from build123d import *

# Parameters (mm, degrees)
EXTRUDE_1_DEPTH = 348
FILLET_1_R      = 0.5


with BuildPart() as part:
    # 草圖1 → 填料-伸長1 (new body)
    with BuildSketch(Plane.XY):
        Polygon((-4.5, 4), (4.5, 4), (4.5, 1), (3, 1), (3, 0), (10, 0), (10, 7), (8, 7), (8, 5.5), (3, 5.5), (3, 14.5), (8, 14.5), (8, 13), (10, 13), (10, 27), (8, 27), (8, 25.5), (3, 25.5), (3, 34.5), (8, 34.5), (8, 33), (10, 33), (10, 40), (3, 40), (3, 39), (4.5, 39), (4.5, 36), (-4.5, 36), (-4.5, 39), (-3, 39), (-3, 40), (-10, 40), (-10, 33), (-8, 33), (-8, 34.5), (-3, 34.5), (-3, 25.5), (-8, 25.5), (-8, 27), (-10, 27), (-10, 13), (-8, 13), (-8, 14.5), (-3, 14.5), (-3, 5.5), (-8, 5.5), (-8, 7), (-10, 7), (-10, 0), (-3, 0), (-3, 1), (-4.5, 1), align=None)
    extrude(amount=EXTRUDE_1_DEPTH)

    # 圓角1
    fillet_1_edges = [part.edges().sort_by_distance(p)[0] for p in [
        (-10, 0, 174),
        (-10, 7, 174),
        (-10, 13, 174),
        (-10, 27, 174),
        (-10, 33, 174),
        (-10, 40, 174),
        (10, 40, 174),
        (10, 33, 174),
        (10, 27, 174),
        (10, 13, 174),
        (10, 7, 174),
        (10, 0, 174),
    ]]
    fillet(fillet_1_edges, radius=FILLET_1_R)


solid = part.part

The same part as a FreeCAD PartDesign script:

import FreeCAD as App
import Part
import Sketcher
from FreeCAD import Vector
Q = App.Units.Quantity


def edges_at(feature, points):
    """Names of the edges that pass closest to the given points."""
    edges = feature.Shape.Edges
    near = lambda p: min(range(len(edges)), key=lambda i: edges[i].distToShape(Part.Vertex(*p))[0])
    return sorted({f"Edge{near(p) + 1}" for p in points})

doc = App.newDocument("Part")
body = doc.addObject("PartDesign::Body", "Body")

# Sketch on XY plane
sketch1 = doc.addObject("Sketcher::SketchObject", "Sketch")
body.addObject(sketch1)
sketch1.AttachmentSupport = (doc.XY_Plane, [""])
sketch1.MapMode = "FlatFace"
sketch1.addGeometry([
    Part.LineSegment(Vector(-4.5, 4, 0), Vector(4.5, 4, 0)),  # 0
    Part.LineSegment(Vector(4.5, 4, 0), Vector(4.5, 1, 0)),  # 1
    Part.LineSegment(Vector(4.5, 1, 0), Vector(3, 1, 0)),  # 2
    Part.LineSegment(Vector(3, 1, 0), Vector(3, 0, 0)),  # 3
    Part.LineSegment(Vector(3, 0, 0), Vector(10, 0, 0)),  # 4
    Part.LineSegment(Vector(10, 0, 0), Vector(10, 7, 0)),  # 5
    Part.LineSegment(Vector(10, 7, 0), Vector(8, 7, 0)),  # 6
    Part.LineSegment(Vector(8, 7, 0), Vector(8, 5.5, 0)),  # 7
    Part.LineSegment(Vector(8, 5.5, 0), Vector(3, 5.5, 0)),  # 8
    Part.LineSegment(Vector(3, 5.5, 0), Vector(3, 14.5, 0)),  # 9
    Part.LineSegment(Vector(3, 14.5, 0), Vector(8, 14.5, 0)),  # 10
    Part.LineSegment(Vector(8, 14.5, 0), Vector(8, 13, 0)),  # 11
    Part.LineSegment(Vector(8, 13, 0), Vector(10, 13, 0)),  # 12
    Part.LineSegment(Vector(10, 13, 0), Vector(10, 27, 0)),  # 13
    Part.LineSegment(Vector(10, 27, 0), Vector(8, 27, 0)),  # 14
    Part.LineSegment(Vector(8, 27, 0), Vector(8, 25.5, 0)),  # 15
    Part.LineSegment(Vector(8, 25.5, 0), Vector(3, 25.5, 0)),  # 16
    Part.LineSegment(Vector(3, 25.5, 0), Vector(3, 34.5, 0)),  # 17
    Part.LineSegment(Vector(3, 34.5, 0), Vector(8, 34.5, 0)),  # 18
    Part.LineSegment(Vector(8, 34.5, 0), Vector(8, 33, 0)),  # 19
    Part.LineSegment(Vector(8, 33, 0), Vector(10, 33, 0)),  # 20
    Part.LineSegment(Vector(10, 33, 0), Vector(10, 40, 0)),  # 21
    Part.LineSegment(Vector(10, 40, 0), Vector(3, 40, 0)),  # 22
    Part.LineSegment(Vector(3, 40, 0), Vector(3, 39, 0)),  # 23
    Part.LineSegment(Vector(3, 39, 0), Vector(4.5, 39, 0)),  # 24
    Part.LineSegment(Vector(4.5, 39, 0), Vector(4.5, 36, 0)),  # 25
    Part.LineSegment(Vector(4.5, 36, 0), Vector(-4.5, 36, 0)),  # 26
    Part.LineSegment(Vector(-4.5, 36, 0), Vector(-4.5, 39, 0)),  # 27
    Part.LineSegment(Vector(-4.5, 39, 0), Vector(-3, 39, 0)),  # 28
    Part.LineSegment(Vector(-3, 39, 0), Vector(-3, 40, 0)),  # 29
    Part.LineSegment(Vector(-3, 40, 0), Vector(-10, 40, 0)),  # 30
    Part.LineSegment(Vector(-10, 40, 0), Vector(-10, 33, 0)),  # 31
    Part.LineSegment(Vector(-10, 33, 0), Vector(-8, 33, 0)),  # 32
    Part.LineSegment(Vector(-8, 33, 0), Vector(-8, 34.5, 0)),  # 33
    Part.LineSegment(Vector(-8, 34.5, 0), Vector(-3, 34.5, 0)),  # 34
    Part.LineSegment(Vector(-3, 34.5, 0), Vector(-3, 25.5, 0)),  # 35
    Part.LineSegment(Vector(-3, 25.5, 0), Vector(-8, 25.5, 0)),  # 36
    Part.LineSegment(Vector(-8, 25.5, 0), Vector(-8, 27, 0)),  # 37
    Part.LineSegment(Vector(-8, 27, 0), Vector(-10, 27, 0)),  # 38
    Part.LineSegment(Vector(-10, 27, 0), Vector(-10, 13, 0)),  # 39
    Part.LineSegment(Vector(-10, 13, 0), Vector(-8, 13, 0)),  # 40
    Part.LineSegment(Vector(-8, 13, 0), Vector(-8, 14.5, 0)),  # 41
    Part.LineSegment(Vector(-8, 14.5, 0), Vector(-3, 14.5, 0)),  # 42
    Part.LineSegment(Vector(-3, 14.5, 0), Vector(-3, 5.5, 0)),  # 43
    Part.LineSegment(Vector(-3, 5.5, 0), Vector(-8, 5.5, 0)),  # 44
    Part.LineSegment(Vector(-8, 5.5, 0), Vector(-8, 7, 0)),  # 45
    Part.LineSegment(Vector(-8, 7, 0), Vector(-10, 7, 0)),  # 46
    Part.LineSegment(Vector(-10, 7, 0), Vector(-10, 0, 0)),  # 47
    Part.LineSegment(Vector(-10, 0, 0), Vector(-3, 0, 0)),  # 48
    Part.LineSegment(Vector(-3, 0, 0), Vector(-3, 1, 0)),  # 49
    Part.LineSegment(Vector(-3, 1, 0), Vector(-4.5, 1, 0)),  # 50
    Part.LineSegment(Vector(-4.5, 1, 0), Vector(-4.5, 4, 0)),  # 51
], False)
sketch1.addConstraint([
    Sketcher.Constraint("Coincident", 0, 2, 1, 1),
    Sketcher.Constraint("Coincident", 1, 2, 2, 1),
    Sketcher.Constraint("Coincident", 2, 2, 3, 1),
    Sketcher.Constraint("Coincident", 3, 2, 4, 1),
    Sketcher.Constraint("Coincident", 4, 2, 5, 1),
    Sketcher.Constraint("Coincident", 5, 2, 6, 1),
    Sketcher.Constraint("Coincident", 6, 2, 7, 1),
    Sketcher.Constraint("Coincident", 7, 2, 8, 1),
    Sketcher.Constraint("Coincident", 8, 2, 9, 1),
    Sketcher.Constraint("Coincident", 9, 2, 10, 1),
    Sketcher.Constraint("Coincident", 10, 2, 11, 1),
    Sketcher.Constraint("Coincident", 11, 2, 12, 1),
    Sketcher.Constraint("Coincident", 12, 2, 13, 1),
    Sketcher.Constraint("Coincident", 13, 2, 14, 1),
    Sketcher.Constraint("Coincident", 14, 2, 15, 1),
    Sketcher.Constraint("Coincident", 15, 2, 16, 1),
    Sketcher.Constraint("Coincident", 16, 2, 17, 1),
    Sketcher.Constraint("Coincident", 17, 2, 18, 1),
    Sketcher.Constraint("Coincident", 18, 2, 19, 1),
    Sketcher.Constraint("Coincident", 19, 2, 20, 1),
    Sketcher.Constraint("Coincident", 20, 2, 21, 1),
    Sketcher.Constraint("Coincident", 21, 2, 22, 1),
    Sketcher.Constraint("Coincident", 22, 2, 23, 1),
    Sketcher.Constraint("Coincident", 23, 2, 24, 1),
    Sketcher.Constraint("Coincident", 24, 2, 25, 1),
    Sketcher.Constraint("Coincident", 25, 2, 26, 1),
    Sketcher.Constraint("Coincident", 26, 2, 27, 1),
    Sketcher.Constraint("Coincident", 27, 2, 28, 1),
    Sketcher.Constraint("Coincident", 28, 2, 29, 1),
    Sketcher.Constraint("Coincident", 29, 2, 30, 1),
    Sketcher.Constraint("Coincident", 30, 2, 31, 1),
    Sketcher.Constraint("Coincident", 31, 2, 32, 1),
    Sketcher.Constraint("Coincident", 32, 2, 33, 1),
    Sketcher.Constraint("Coincident", 33, 2, 34, 1),
    Sketcher.Constraint("Coincident", 34, 2, 35, 1),
    Sketcher.Constraint("Coincident", 35, 2, 36, 1),
    Sketcher.Constraint("Coincident", 36, 2, 37, 1),
    Sketcher.Constraint("Coincident", 37, 2, 38, 1),
    Sketcher.Constraint("Coincident", 38, 2, 39, 1),
    Sketcher.Constraint("Coincident", 39, 2, 40, 1),
    Sketcher.Constraint("Coincident", 40, 2, 41, 1),
    Sketcher.Constraint("Coincident", 41, 2, 42, 1),
    Sketcher.Constraint("Coincident", 42, 2, 43, 1),
    Sketcher.Constraint("Coincident", 43, 2, 44, 1),
    Sketcher.Constraint("Coincident", 44, 2, 45, 1),
    Sketcher.Constraint("Coincident", 45, 2, 46, 1),
    Sketcher.Constraint("Coincident", 46, 2, 47, 1),
    Sketcher.Constraint("Coincident", 47, 2, 48, 1),
    Sketcher.Constraint("Coincident", 48, 2, 49, 1),
    Sketcher.Constraint("Coincident", 49, 2, 50, 1),
    Sketcher.Constraint("Coincident", 50, 2, 51, 1),
    Sketcher.Constraint("Coincident", 51, 2, 0, 1),
    Sketcher.Constraint("Horizontal", 0),
    Sketcher.Constraint("Vertical", 1),
    Sketcher.Constraint("Horizontal", 2),
    Sketcher.Constraint("Vertical", 3),
    Sketcher.Constraint("Horizontal", 4),
    Sketcher.Constraint("Vertical", 5),
    Sketcher.Constraint("Horizontal", 6),
    Sketcher.Constraint("Vertical", 7),
    Sketcher.Constraint("Horizontal", 8),
    Sketcher.Constraint("Vertical", 9),
    Sketcher.Constraint("Horizontal", 10),
    Sketcher.Constraint("Vertical", 11),
    Sketcher.Constraint("Horizontal", 12),
    Sketcher.Constraint("Vertical", 13),
    Sketcher.Constraint("Horizontal", 14),
    Sketcher.Constraint("Vertical", 15),
    Sketcher.Constraint("Horizontal", 16),
    Sketcher.Constraint("Vertical", 17),
    Sketcher.Constraint("Horizontal", 18),
    Sketcher.Constraint("Vertical", 19),
    Sketcher.Constraint("Horizontal", 20),
    Sketcher.Constraint("Vertical", 21),
    Sketcher.Constraint("Horizontal", 22),
    Sketcher.Constraint("Vertical", 23),
    Sketcher.Constraint("Horizontal", 24),
    Sketcher.Constraint("Vertical", 25),
    Sketcher.Constraint("Horizontal", 26),
    Sketcher.Constraint("Vertical", 27),
    Sketcher.Constraint("Horizontal", 28),
    Sketcher.Constraint("Vertical", 29),
    Sketcher.Constraint("Horizontal", 30),
    Sketcher.Constraint("Vertical", 31),
    Sketcher.Constraint("Horizontal", 32),
    Sketcher.Constraint("Vertical", 33),
    Sketcher.Constraint("Horizontal", 34),
    Sketcher.Constraint("Vertical", 35),
    Sketcher.Constraint("Horizontal", 36),
    Sketcher.Constraint("Vertical", 37),
    Sketcher.Constraint("Horizontal", 38),
    Sketcher.Constraint("Vertical", 39),
    Sketcher.Constraint("Horizontal", 40),
    Sketcher.Constraint("Vertical", 41),
    Sketcher.Constraint("Horizontal", 42),
    Sketcher.Constraint("Vertical", 43),
    Sketcher.Constraint("Horizontal", 44),
    Sketcher.Constraint("Vertical", 45),
    Sketcher.Constraint("Horizontal", 46),
    Sketcher.Constraint("Vertical", 47),
    Sketcher.Constraint("Horizontal", 48),
    Sketcher.Constraint("Vertical", 49),
    Sketcher.Constraint("Horizontal", 50),
    Sketcher.Constraint("Vertical", 51),
    Sketcher.Constraint("Symmetric", 4, 2, 47, 2, -1, 1),
    Sketcher.Constraint("Symmetric", 24, 2, 27, 2, -2),
    Sketcher.Constraint("Symmetric", 22, 2, 29, 2, -2),
    Sketcher.Constraint("Symmetric", 20, 2, 31, 2, -2),
    Sketcher.Constraint("Symmetric", 18, 2, 33, 2, -2),
    Sketcher.Constraint("Symmetric", 16, 2, 35, 2, -2),
    Sketcher.Constraint("Symmetric", 14, 2, 37, 2, -2),
    Sketcher.Constraint("Symmetric", 12, 2, 39, 2, -2),
    Sketcher.Constraint("Symmetric", 10, 2, 41, 2, -2),
    Sketcher.Constraint("Symmetric", 8, 2, 43, 2, -2),
    Sketcher.Constraint("Symmetric", 6, 2, 45, 2, -2),
    Sketcher.Constraint("Symmetric", 3, 2, 48, 2, -2),
    Sketcher.Constraint("Symmetric", 1, 2, 50, 2, -2),
    Sketcher.Constraint("Vertical", 3, 2, 8, 2),
    Sketcher.Constraint("Vertical", 7, 2, 10, 2),
    Sketcher.Constraint("Vertical", 5, 2, 12, 2),
    Sketcher.Constraint("Vertical", 11, 2, 14, 2),
    Sketcher.Constraint("Vertical", 9, 2, 16, 2),
    Sketcher.Constraint("Vertical", 15, 2, 18, 2),
    Sketcher.Constraint("Vertical", 13, 2, 20, 2),
    Sketcher.Constraint("Vertical", 17, 2, 22, 2),
    Sketcher.Constraint("Vertical", 1, 2, 24, 2),
    Sketcher.Constraint("Equal", 48, 5),
    Sketcher.Constraint("Equal", 50, 7),
    Sketcher.Constraint("Equal", 26, 9),
    Sketcher.Constraint("Equal", 7, 11),
    Sketcher.Constraint("Equal", 11, 15),
    Sketcher.Constraint("Equal", 9, 17),
    Sketcher.Constraint("Equal", 15, 19),
    Sketcher.Constraint("Equal", 5, 21),
    Sketcher.Constraint("Equal", 3, 23),
    Sketcher.Constraint("Equal", 1, 25),
    Sketcher.Constraint("DistanceX", 0, 1, 0, 2, Q("9 mm")),
    Sketcher.Constraint("DistanceX", 4, 1, 4, 2, Q("7 mm")),
    Sketcher.Constraint("DistanceX", 6, 2, 6, 1, Q("2 mm")),
    Sketcher.Constraint("DistanceY", 1, 2, 1, 1, Q("3 mm")),
    Sketcher.Constraint("DistanceY", 3, 2, 3, 1, Q("1 mm")),
    Sketcher.Constraint("DistanceY", 13, 1, 13, 2, Q("14 mm")),
    Sketcher.Constraint("DistanceX", 2, 2, 2, 1, Q("1.5 mm")),
])
pad1 = doc.addObject("PartDesign::Pad", "Pad")
body.addObject(pad1)
pad1.Profile = sketch1
pad1.Length = 348
doc.recompute()

fillet = doc.addObject("PartDesign::Fillet", "Fillet")
body.addObject(fillet)
fillet.Base = (pad1, edges_at(pad1, [
    (-10, 0, 174),
    (-10, 7, 174),
    (-10, 13, 174),
    (-10, 27, 174),
    (-10, 33, 174),
    (-10, 40, 174),
    (10, 40, 174),
    (10, 33, 174),
    (10, 27, 174),
    (10, 13, 174),
    (10, 7, 174),
    (10, 0, 174),
]))
fillet.Radius = 0.5

doc.recompute()
